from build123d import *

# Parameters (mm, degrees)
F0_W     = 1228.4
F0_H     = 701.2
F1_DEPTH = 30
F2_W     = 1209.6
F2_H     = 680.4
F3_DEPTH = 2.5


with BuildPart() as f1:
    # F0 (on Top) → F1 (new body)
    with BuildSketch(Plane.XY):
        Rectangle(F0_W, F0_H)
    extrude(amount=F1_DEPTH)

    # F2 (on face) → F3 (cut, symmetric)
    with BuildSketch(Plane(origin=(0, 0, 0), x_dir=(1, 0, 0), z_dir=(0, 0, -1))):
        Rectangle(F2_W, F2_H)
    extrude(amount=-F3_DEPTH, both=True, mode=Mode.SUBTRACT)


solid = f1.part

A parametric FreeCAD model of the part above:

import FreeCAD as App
import Part
import Sketcher
from FreeCAD import Vector


def add_polygon(sketch, points):
    """Adds a closed chain of lines whose ends are joined by coincident constraints."""
    first, n = sketch.GeometryCount, len(points)
    for a, b in zip(points, points[1:] + points[:1]):
        sketch.addGeometry(Part.LineSegment(App.Vector(*a, 0), App.Vector(*b, 0)), False)
    for i in range(n):
        sketch.addConstraint(Sketcher.Constraint("Coincident", first + i, 2, first + (i + 1) % n, 1))

doc = App.newDocument("Part")
params = doc.addObject("Spreadsheet::Sheet", "Params")
for row, (alias, value) in enumerate([
    ("sketch1_width", "1228.4 mm"),
    ("sketch1_height", "701.2 mm"),
    ("pad1_length", "30 mm"),
    ("sketch2_width", "1209.6 mm"),
    ("sketch2_height", "680.4 mm"),
    ("pocket1_length", "5 mm"),
], start=1):
    params.set(f"A{row}", alias)
    params.set(f"B{row}", "=" + value)
    params.setAlias(f"B{row}", alias)

body = doc.addObject("PartDesign::Body", "Body")

sketch1 = body.newObject("Sketcher::SketchObject", "Sketch")
sketch1.AttachmentSupport = (doc.getObject("XY_Plane"), [""])
sketch1.MapMode = "FlatFace"
add_polygon(sketch1, [(-614.2, 350.6), (-614.2, -350.6), (614.2, -350.6), (614.2, 350.6)])
sketch1.addConstraint(Sketcher.Constraint("Vertical", 0))
sketch1.addConstraint(Sketcher.Constraint("Horizontal", 1))
sketch1.addConstraint(Sketcher.Constraint("Vertical", 2))
sketch1.addConstraint(Sketcher.Constraint("Horizontal", 3))
sketch1.addConstraint(Sketcher.Constraint("Symmetric", 0, 2, 2, 2, -1, 1))
sketch1.addConstraint(Sketcher.Constraint("DistanceX", 1, 1, 1, 2, 1228.4))
sketch1.addConstraint(Sketcher.Constraint("DistanceY", 0, 2, 0, 1, 701.2))
sketch1.setExpression("Constraints[9]", "Params.sketch1_width")
sketch1.setExpression("Constraints[10]", "Params.sketch1_height")
pad1 = body.newObject("PartDesign::Pad", "Pad")
pad1.Profile = sketch1
pad1.setExpression("Length", "Params.pad1_length")

sketch2 = body.newObject("Sketcher::SketchObject", "Sketch001")
sketch2.AttachmentSupport = (doc.getObject("XY_Plane"), [""])
sketch2.MapMode = "FlatFace"
add_polygon(sketch2, [(-604.8, -340.2), (-604.8, 340.2), (604.8, 340.2), (604.8, -340.2)])
sketch2.addConstraint(Sketcher.Constraint("Vertical", 0))
sketch2.addConstraint(Sketcher.Constraint("Horizontal", 1))
sketch2.addConstraint(Sketcher.Constraint("Vertical", 2))
sketch2.addConstraint(Sketcher.Constraint("Horizontal", 3))
sketch2.addConstraint(Sketcher.Constraint("Symmetric", 0, 2, 2, 2, -1, 1))
sketch2.addConstraint(Sketcher.Constraint("DistanceX", 1, 1, 1, 2, 1209.6))
sketch2.addConstraint(Sketcher.Constraint("DistanceY", 0, 1, 0, 2, 680.4))
sketch2.setExpression("Constraints[9]", "Params.sketch2_width")
sketch2.setExpression("Constraints[10]", "Params.sketch2_height")
pocket1 = body.newObject("PartDesign::Pocket", "Pocket")
pocket1.Profile = sketch2
pocket1.setExpression("Length", "Params.pocket1_length")
pocket1.Midplane = True

doc.recompute()
